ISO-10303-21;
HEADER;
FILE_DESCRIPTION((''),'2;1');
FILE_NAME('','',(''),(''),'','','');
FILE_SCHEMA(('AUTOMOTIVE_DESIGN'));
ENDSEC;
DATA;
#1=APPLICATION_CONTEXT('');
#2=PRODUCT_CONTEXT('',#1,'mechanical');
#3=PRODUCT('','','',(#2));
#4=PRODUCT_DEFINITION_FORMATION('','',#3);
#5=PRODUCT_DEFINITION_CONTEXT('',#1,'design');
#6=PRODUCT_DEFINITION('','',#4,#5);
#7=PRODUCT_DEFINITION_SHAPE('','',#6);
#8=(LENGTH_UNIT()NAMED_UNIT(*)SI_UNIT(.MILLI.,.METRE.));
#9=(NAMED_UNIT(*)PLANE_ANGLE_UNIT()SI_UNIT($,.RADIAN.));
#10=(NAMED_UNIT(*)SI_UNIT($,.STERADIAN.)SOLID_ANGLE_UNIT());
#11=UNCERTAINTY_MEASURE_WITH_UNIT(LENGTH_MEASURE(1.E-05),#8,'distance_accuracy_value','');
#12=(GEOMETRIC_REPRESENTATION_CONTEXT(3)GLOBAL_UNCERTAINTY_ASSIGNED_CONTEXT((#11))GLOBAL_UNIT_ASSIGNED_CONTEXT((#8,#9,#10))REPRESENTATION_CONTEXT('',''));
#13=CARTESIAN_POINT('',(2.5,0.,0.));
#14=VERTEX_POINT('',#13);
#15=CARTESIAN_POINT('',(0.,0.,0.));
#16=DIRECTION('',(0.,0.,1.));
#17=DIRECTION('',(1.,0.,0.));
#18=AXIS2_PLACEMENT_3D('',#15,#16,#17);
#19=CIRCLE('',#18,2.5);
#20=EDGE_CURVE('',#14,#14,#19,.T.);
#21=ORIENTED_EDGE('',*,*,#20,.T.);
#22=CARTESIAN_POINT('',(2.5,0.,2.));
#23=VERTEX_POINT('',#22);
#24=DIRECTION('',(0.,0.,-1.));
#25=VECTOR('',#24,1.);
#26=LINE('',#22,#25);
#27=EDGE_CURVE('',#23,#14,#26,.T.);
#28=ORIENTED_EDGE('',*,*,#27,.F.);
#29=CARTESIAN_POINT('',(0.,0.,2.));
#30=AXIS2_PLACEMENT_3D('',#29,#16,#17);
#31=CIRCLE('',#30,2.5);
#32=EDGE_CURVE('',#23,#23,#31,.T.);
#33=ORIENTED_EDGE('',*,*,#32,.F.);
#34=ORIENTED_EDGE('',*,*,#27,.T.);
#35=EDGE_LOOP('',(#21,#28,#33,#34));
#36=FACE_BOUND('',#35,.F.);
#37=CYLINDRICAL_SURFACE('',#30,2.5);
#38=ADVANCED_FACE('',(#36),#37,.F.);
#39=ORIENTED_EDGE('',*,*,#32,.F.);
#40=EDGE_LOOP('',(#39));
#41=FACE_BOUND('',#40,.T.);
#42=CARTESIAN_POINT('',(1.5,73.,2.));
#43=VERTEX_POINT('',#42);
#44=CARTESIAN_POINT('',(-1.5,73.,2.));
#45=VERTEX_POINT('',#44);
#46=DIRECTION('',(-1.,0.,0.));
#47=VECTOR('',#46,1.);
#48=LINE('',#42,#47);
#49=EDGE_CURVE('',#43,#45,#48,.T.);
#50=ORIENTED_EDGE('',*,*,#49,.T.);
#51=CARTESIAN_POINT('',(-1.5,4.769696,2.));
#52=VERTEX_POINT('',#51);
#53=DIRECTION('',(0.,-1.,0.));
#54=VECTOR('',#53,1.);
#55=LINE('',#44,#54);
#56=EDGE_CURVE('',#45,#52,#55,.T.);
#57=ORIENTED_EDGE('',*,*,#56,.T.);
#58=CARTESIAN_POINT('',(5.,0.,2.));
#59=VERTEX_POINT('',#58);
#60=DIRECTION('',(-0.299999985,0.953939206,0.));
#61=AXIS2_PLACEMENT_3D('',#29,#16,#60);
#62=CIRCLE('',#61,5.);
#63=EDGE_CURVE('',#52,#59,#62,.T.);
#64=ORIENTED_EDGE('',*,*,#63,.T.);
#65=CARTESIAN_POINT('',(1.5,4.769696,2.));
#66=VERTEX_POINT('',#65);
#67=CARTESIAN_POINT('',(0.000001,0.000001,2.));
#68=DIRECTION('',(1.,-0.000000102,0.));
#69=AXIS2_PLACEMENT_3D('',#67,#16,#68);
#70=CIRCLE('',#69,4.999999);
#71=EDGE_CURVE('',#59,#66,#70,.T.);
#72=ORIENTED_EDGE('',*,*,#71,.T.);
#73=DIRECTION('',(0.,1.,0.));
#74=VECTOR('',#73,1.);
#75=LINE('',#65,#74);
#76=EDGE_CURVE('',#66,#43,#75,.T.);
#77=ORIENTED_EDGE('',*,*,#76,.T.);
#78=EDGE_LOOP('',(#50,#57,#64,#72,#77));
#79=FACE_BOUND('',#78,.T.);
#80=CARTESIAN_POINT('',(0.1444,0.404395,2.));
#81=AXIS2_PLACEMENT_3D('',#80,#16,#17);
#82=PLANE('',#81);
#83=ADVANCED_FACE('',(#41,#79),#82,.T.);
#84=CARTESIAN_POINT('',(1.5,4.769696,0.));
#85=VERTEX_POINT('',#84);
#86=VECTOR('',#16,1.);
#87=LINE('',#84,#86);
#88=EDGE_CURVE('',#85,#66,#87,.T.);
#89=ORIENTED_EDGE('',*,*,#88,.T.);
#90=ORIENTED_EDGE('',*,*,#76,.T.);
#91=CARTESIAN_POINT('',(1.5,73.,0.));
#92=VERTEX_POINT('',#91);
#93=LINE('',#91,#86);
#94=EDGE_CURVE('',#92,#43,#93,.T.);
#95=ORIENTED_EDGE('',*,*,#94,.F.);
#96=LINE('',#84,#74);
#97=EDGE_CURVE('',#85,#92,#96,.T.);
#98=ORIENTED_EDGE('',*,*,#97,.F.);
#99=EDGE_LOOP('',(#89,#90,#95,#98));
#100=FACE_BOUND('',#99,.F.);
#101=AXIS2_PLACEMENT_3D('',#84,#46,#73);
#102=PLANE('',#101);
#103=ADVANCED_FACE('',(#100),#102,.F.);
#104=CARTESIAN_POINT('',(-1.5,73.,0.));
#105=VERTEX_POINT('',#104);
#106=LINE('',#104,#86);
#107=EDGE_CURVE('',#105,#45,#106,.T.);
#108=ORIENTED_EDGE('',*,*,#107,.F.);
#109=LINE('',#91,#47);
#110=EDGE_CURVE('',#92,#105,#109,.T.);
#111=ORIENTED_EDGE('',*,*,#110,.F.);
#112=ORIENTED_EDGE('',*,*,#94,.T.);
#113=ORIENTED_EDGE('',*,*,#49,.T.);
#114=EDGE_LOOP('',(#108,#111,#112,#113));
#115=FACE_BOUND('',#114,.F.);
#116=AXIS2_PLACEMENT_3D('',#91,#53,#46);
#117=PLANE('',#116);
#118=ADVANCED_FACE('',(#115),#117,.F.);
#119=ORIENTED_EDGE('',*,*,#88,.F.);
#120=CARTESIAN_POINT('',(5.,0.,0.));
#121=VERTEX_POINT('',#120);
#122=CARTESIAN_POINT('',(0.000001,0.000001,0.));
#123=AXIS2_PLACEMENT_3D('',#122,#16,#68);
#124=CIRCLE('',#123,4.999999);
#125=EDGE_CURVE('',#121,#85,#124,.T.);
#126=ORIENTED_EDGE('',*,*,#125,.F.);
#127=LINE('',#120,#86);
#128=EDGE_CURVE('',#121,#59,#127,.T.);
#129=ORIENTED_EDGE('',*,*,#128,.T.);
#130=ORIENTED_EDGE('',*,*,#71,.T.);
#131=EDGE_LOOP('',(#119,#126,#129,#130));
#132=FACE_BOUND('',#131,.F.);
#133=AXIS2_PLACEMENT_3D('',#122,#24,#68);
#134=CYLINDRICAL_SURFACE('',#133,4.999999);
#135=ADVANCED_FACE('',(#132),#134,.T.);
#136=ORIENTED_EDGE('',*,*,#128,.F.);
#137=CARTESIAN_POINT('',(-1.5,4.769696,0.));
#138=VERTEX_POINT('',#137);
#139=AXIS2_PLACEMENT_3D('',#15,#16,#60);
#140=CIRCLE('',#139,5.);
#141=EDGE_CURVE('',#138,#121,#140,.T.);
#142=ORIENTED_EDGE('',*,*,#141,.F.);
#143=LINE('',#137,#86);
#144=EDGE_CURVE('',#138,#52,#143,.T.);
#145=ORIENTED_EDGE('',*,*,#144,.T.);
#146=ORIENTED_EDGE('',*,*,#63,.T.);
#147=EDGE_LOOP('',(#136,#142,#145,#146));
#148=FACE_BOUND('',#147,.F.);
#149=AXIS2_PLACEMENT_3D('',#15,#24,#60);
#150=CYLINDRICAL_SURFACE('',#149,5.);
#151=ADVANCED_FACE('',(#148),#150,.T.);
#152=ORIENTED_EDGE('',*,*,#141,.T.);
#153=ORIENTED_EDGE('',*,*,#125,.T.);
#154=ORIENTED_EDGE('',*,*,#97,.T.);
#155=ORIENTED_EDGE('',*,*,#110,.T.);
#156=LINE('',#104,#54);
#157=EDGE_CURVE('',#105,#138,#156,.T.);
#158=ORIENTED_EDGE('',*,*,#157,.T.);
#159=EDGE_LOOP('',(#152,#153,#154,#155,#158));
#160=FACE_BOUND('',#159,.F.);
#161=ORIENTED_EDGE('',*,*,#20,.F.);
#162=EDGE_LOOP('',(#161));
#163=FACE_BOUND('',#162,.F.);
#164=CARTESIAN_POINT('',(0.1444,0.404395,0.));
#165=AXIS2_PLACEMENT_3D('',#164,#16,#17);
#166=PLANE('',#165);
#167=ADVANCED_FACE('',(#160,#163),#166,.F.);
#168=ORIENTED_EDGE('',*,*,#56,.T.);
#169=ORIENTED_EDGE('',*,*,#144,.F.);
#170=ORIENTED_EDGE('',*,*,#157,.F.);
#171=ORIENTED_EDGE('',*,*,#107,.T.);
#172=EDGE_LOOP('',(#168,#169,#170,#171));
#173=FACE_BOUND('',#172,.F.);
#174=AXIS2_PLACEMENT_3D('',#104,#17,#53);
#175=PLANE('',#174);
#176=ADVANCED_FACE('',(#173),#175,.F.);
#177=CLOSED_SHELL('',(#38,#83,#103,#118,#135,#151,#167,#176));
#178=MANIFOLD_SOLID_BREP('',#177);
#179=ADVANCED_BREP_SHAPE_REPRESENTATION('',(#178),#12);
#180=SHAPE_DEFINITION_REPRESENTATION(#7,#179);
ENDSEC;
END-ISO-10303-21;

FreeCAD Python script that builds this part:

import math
import FreeCAD as App
import Part
import Sketcher
from FreeCAD import Vector
Q = App.Units.Quantity

doc = App.newDocument("Part")
body = doc.addObject("PartDesign::Body", "Body")

sketch1 = doc.addObject("Sketcher::SketchObject", "Sketch")
body.addObject(sketch1)
sketch1.AttachmentSupport = (doc.XY_Plane, [""])
sketch1.MapMode = "FlatFace"
sketch1.addGeometry([
    Part.ArcOfCircle(Part.Circle(Vector(0, 0, 0), Vector(0, 0, 1), 5), math.radians(107), math.radians(360)),
    Part.ArcOfCircle(Part.Circle(Vector(0, 0, 0), Vector(0, 0, 1), 5), math.radians(0), math.radians(73)),
    Part.LineSegment(Vector(1.5, 4.8, 0), Vector(1.5, 73, 0)),
    Part.LineSegment(Vector(1.5, 73, 0), Vector(-1.5, 73, 0)),
    Part.LineSegment(Vector(-1.5, 73, 0), Vector(-1.5, 4.8, 0)),
], False)
sketch1.addConstraint([
    Sketcher.Constraint("Tangent", 0, 2, 1, 1),
    Sketcher.Constraint("Coincident", 1, 2, 2, 1),
    Sketcher.Constraint("Coincident", 2, 2, 3, 1),
    Sketcher.Constraint("Coincident", 3, 2, 4, 1),
    Sketcher.Constraint("Coincident", 4, 2, 0, 1),
    Sketcher.Constraint("Vertical", 2),
    Sketcher.Constraint("Horizontal", 3),
    Sketcher.Constraint("Vertical", 4),
    Sketcher.Constraint("Coincident", 0, 3, -1, 1),
    Sketcher.Constraint("Equal", 0, 1),
    Sketcher.Constraint("PointOnObject", 0, 2, -1),
    Sketcher.Constraint("Horizontal", 1, 2, 4, 2),
    Sketcher.Constraint("Radius", 0, Q("5 mm")),
    Sketcher.Constraint("DistanceX", 3, 2, 3, 1, Q("3 mm")),
    Sketcher.Constraint("DistanceY", -1, 1, 2, 2, Q("73 mm")),
])
pad1 = doc.addObject("PartDesign::Pad", "Pad")
body.addObject(pad1)
pad1.Profile = sketch1
pad1.Length = 2

sketch2 = doc.addObject("Sketcher::SketchObject", "Sketch001")
body.addObject(sketch2)
sketch2.AttachmentSupport = (doc.XY_Plane, [""])
sketch2.MapMode = "FlatFace"
sketch2.AttachmentOffset = App.Placement(Vector(0, 0, 2), App.Rotation())
sketch2.addGeometry(Part.Circle(Vector(0, 0, 0), Vector(0, 0, 1), 2.5), False)
sketch2.addConstraint([
    Sketcher.Constraint("Coincident", 0, 3, -1, 1),
    Sketcher.Constraint("Diameter", 0, Q("5 mm")),
])
pocket1 = doc.addObject("PartDesign::Pocket", "Pocket")
body.addObject(pocket1)
pocket1.Profile = sketch2
pocket1.Type = "ThroughAll"

doc.recompute()
